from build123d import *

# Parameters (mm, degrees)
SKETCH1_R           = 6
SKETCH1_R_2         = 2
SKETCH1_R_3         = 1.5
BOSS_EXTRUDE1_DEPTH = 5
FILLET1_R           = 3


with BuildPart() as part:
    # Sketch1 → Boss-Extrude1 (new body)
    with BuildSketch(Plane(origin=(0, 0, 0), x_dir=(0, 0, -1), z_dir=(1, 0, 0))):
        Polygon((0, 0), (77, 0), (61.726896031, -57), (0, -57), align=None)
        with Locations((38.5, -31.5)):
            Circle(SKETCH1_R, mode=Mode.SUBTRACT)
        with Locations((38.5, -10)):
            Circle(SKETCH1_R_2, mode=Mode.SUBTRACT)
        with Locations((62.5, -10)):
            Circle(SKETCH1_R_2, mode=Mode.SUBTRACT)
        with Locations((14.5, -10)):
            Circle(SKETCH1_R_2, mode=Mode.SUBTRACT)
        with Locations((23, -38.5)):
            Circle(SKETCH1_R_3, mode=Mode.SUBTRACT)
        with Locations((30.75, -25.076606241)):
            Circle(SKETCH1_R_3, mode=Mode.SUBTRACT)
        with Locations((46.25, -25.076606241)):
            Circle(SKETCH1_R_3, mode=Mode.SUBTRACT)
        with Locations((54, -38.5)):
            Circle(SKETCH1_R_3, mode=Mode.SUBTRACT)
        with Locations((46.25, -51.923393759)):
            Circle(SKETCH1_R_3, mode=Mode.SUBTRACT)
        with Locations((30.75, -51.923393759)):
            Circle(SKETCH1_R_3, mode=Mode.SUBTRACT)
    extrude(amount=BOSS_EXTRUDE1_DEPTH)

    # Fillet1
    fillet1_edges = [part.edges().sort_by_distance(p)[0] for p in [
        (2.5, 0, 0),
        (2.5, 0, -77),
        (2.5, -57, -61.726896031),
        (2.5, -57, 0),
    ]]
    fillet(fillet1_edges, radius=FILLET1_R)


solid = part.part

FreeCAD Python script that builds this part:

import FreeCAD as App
import Part
import Sketcher

V = App.Vector
Q = App.Units.Quantity


def edges_at(feature, points):
    """Names of the edges that pass closest to the given points."""
    edges = feature.Shape.Edges
    near = lambda p: min(range(len(edges)), key=lambda i: edges[i].distToShape(Part.Vertex(*p))[0])
    return sorted({f"Edge{near(p) + 1}" for p in points})

doc = App.newDocument("Part")
body = doc.addObject("PartDesign::Body", "Body")

# Sketch on YZ plane
sketch1 = body.newObject("Sketcher::SketchObject", "Sketch")
sketch1.AttachmentSupport = (doc.getObject("YZ_Plane"), [""])
sketch1.MapMode = "FlatFace"
sketch1.addGeometry([
    Part.LineSegment(V(0, -77, 0), V(0, 0, 0)),  # 0
    Part.LineSegment(V(0, 0, 0), V(-57, 0, 0)),  # 1
    Part.LineSegment(V(-57, 0, 0), V(-57, -61.7, 0)),  # 2
    Part.LineSegment(V(-57, -61.7, 0), V(0, -77, 0)),  # 3
    Part.Circle(V(-51.9, -46.2, 0), V(0, 0, 1), 1.5),  # 4
    Part.Circle(V(-38.5, -54, 0), V(0, 0, 1), 1.5),  # 5
    Part.Circle(V(-51.9, -30.8, 0), V(0, 0, 1), 1.5),  # 6
    Part.Circle(V(-31.5, -38.5, 0), V(0, 0, 1), 6),  # 7
    Part.Circle(V(-38.5, -23, 0), V(0, 0, 1), 1.5),  # 8
    Part.Circle(V(-25.1, -46.2, 0), V(0, 0, 1), 1.5),  # 9
    Part.Circle(V(-10, -62.5, 0), V(0, 0, 1), 2),  # 10
    Part.Circle(V(-25.1, -30.8, 0), V(0, 0, 1), 1.5),  # 11
    Part.Circle(V(-10, -38.5, 0), V(0, 0, 1), 2),  # 12
    Part.Circle(V(-10, -14.5, 0), V(0, 0, 1), 2),  # 13
], False)
sketch1.addConstraint([
    Sketcher.Constraint("Coincident", 0, 2, 1, 1),
    Sketcher.Constraint("Coincident", 1, 2, 2, 1),
    Sketcher.Constraint("Coincident", 2, 2, 3, 1),
    Sketcher.Constraint("Coincident", 3, 2, 0, 1),
    Sketcher.Constraint("Vertical", 0),
    Sketcher.Constraint("Horizontal", 1),
    Sketcher.Constraint("Vertical", 2),
    Sketcher.Constraint("Coincident", 0, 2, -1, 1),
    Sketcher.Constraint("Equal", 4, 5),
    Sketcher.Constraint("Equal", 5, 6),
    Sketcher.Constraint("Equal", 6, 8),
    Sketcher.Constraint("Equal", 8, 9),
    Sketcher.Constraint("Equal", 9, 11),
    Sketcher.Constraint("Equal", 10, 12),
    Sketcher.Constraint("Equal", 12, 13),
    Sketcher.Constraint("Horizontal", 4, 3, 9, 3),
    Sketcher.Constraint("Horizontal", 6, 3, 11, 3),
    Sketcher.Constraint("Horizontal", 7, 3, 12, 3),
    Sketcher.Constraint("Vertical", 4, 3, 6, 3),
    Sketcher.Constraint("Vertical", 5, 3, 8, 3),
    Sketcher.Constraint("Vertical", 9, 3, 11, 3),
    Sketcher.Constraint("Vertical", 10, 3, 12, 3),
    Sketcher.Constraint("Vertical", 12, 3, 13, 3),
    Sketcher.Constraint("Diameter", 4, Q("3 mm")),
    Sketcher.Constraint("Diameter", 7, Q("12 mm")),
    Sketcher.Constraint("Diameter", 10, Q("4 mm")),
    Sketcher.Constraint("DistanceX", 1, 2, 1, 1, Q("57 mm")),
    Sketcher.Constraint("DistanceY", 0, 1, 0, 2, Q("77 mm")),
    Sketcher.Constraint("Angle", 3, Q("-15 deg")),
    Sketcher.Constraint("DistanceY", 5, 3, -1, 1, Q("54 mm")),
    Sketcher.Constraint("DistanceY", 8, 3, -1, 1, Q("23 mm")),
    Sketcher.Constraint("DistanceX", 10, 3, -1, 1, Q("10 mm")),
    Sketcher.Constraint("DistanceX", 5, 3, 7, 3, Q("7 mm")),
    Sketcher.Constraint("DistanceY", 10, 3, 7, 3, Q("24 mm")),
    Sketcher.Constraint("DistanceY", 12, 3, 13, 3, Q("24 mm")),
    Sketcher.Constraint("DistanceX", 5, 3, -1, 1, Q("38.5 mm")),
    Sketcher.Constraint("DistanceY", 7, 3, -1, 1, Q("38.5 mm")),
    Sketcher.Constraint("DistanceY", 4, 3, 6, 3, Q("15.5 mm")),
    Sketcher.Constraint("DistanceY", 4, 3, -1, 1, Q("46.25 mm")),
    Sketcher.Constraint("DistanceX", 4, 3, -1, 1, Q("51.923394 mm")),
    Sketcher.Constraint("DistanceX", 9, 3, -1, 1, Q("25.076606 mm")),
])
pad1 = body.newObject("PartDesign::Pad", "Pad")
pad1.Profile = sketch1
pad1.Length = 5
doc.recompute()

fillet = body.newObject("PartDesign::Fillet", "Fillet")
fillet.Base = (pad1, edges_at(pad1, [
    (2.5, 0, 0),
    (2.5, 0, -77),
    (2.5, -57, -61.727),
    (2.5, -57, 0),
]))
fillet.Radius = 3

doc.recompute()
